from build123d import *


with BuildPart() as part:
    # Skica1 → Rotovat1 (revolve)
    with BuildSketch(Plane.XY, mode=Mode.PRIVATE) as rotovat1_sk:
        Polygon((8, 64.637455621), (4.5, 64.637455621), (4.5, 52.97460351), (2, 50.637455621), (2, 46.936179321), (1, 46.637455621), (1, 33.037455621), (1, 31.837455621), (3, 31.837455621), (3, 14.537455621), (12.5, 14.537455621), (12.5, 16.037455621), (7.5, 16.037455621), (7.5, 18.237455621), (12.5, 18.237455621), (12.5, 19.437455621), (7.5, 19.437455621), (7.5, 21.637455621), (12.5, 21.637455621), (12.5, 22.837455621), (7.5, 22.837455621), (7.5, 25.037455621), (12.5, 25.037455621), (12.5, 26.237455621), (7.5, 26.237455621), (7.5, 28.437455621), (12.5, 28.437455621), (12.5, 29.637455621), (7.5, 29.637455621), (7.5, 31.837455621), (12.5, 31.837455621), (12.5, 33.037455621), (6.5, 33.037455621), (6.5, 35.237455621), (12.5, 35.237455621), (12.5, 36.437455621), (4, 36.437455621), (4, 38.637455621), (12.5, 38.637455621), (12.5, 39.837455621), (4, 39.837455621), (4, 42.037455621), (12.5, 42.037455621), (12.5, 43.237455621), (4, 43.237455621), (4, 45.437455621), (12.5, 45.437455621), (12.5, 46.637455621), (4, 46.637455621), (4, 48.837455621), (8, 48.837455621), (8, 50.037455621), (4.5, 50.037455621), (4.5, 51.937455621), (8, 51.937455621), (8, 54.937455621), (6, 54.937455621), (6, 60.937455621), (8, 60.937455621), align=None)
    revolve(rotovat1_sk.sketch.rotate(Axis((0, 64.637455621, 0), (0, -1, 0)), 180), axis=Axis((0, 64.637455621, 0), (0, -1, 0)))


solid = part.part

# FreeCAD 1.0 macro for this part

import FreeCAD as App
import Part
import Sketcher
from FreeCAD import Vector
Q = App.Units.Quantity


def add_polygon(sketch, points):
    """Adds a closed chain of lines whose ends are joined by coincident constraints."""
    first, n = sketch.GeometryCount, len(points)
    for a, b in zip(points, points[1:] + points[:1]):
        sketch.addGeometry(Part.LineSegment(App.Vector(*a, 0), App.Vector(*b, 0)), False)
    for i in range(n):
        sketch.addConstraint(Sketcher.Constraint("Coincident", first + i, 2, first + (i + 1) % n, 1))

doc = App.newDocument("Part")
body = doc.addObject("PartDesign::Body", "Body")

# Sketch on XY plane
sketch1 = body.newObject("Sketcher::SketchObject", "Sketch")
sketch1.AttachmentSupport = (doc.getObject("XY_Plane"), [""])
sketch1.MapMode = "FlatFace"
add_polygon(sketch1, [(8, 64.6), (4.5, 64.6), (4.5, 53), (2, 50.6), (2, 46.9), (1, 46.6), (1, 31.8), (3, 31.8), (3, 14.5), (12.5, 14.5), (12.5, 16), (7.5, 16), (7.5, 18.2), (12.5, 18.2), (12.5, 19.4), (7.5, 19.4), (7.5, 21.6), (12.5, 21.6), (12.5, 22.8), (7.5, 22.8), (7.5, 25), (12.5, 25), (12.5, 26.2), (7.5, 26.2), (7.5, 28.4), (12.5, 28.4), (12.5, 29.6), (7.5, 29.6), (7.5, 31.8), (12.5, 31.8), (12.5, 33), (6.5, 33), (6.5, 35.2), (12.5, 35.2), (12.5, 36.4), (4, 36.4), (4, 38.6), (12.5, 38.6), (12.5, 39.8), (4, 39.8), (4, 42), (12.5, 42), (12.5, 43.2), (4, 43.2), (4, 45.4), (12.5, 45.4), (12.5, 46.6), (4, 46.6), (4, 48.8), (8, 48.8), (8, 50), (4.5, 50), (4.5, 51.9), (8, 51.9), (8, 54.9), (6, 54.9), (6, 60.9), (8, 60.9)])  # lines 0-57
sketch1.addConstraint([
    Sketcher.Constraint("Horizontal", 0),
    Sketcher.Constraint("Vertical", 1),
    Sketcher.Constraint("Vertical", 3),
    Sketcher.Constraint("Vertical", 5),
    Sketcher.Constraint("Horizontal", 6),
    Sketcher.Constraint("Vertical", 7),
    Sketcher.Constraint("Horizontal", 8),
    Sketcher.Constraint("Vertical", 9),
    Sketcher.Constraint("Horizontal", 10),
    Sketcher.Constraint("Vertical", 11),
    Sketcher.Constraint("Horizontal", 12),
    Sketcher.Constraint("Vertical", 13),
    Sketcher.Constraint("Horizontal", 14),
    Sketcher.Constraint("Vertical", 15),
    Sketcher.Constraint("Horizontal", 16),
    Sketcher.Constraint("Vertical", 17),
    Sketcher.Constraint("Horizontal", 18),
    Sketcher.Constraint("Vertical", 19),
    Sketcher.Constraint("Horizontal", 20),
    Sketcher.Constraint("Vertical", 21),
    Sketcher.Constraint("Horizontal", 22),
    Sketcher.Constraint("Vertical", 23),
    Sketcher.Constraint("Horizontal", 24),
    Sketcher.Constraint("Vertical", 25),
    Sketcher.Constraint("Horizontal", 26),
    Sketcher.Constraint("Vertical", 27),
    Sketcher.Constraint("Horizontal", 28),
    Sketcher.Constraint("Vertical", 29),
    Sketcher.Constraint("Horizontal", 30),
    Sketcher.Constraint("Vertical", 31),
    Sketcher.Constraint("Horizontal", 32),
    Sketcher.Constraint("Vertical", 33),
    Sketcher.Constraint("Horizontal", 34),
    Sketcher.Constraint("Vertical", 35),
    Sketcher.Constraint("Horizontal", 36),
    Sketcher.Constraint("Vertical", 37),
    Sketcher.Constraint("Horizontal", 38),
    Sketcher.Constraint("Vertical", 39),
    Sketcher.Constraint("Horizontal", 40),
    Sketcher.Constraint("Vertical", 41),
    Sketcher.Constraint("Horizontal", 42),
    Sketcher.Constraint("Vertical", 43),
    Sketcher.Constraint("Horizontal", 44),
    Sketcher.Constraint("Vertical", 45),
    Sketcher.Constraint("Horizontal", 46),
    Sketcher.Constraint("Vertical", 47),
    Sketcher.Constraint("Horizontal", 48),
    Sketcher.Constraint("Vertical", 49),
    Sketcher.Constraint("Horizontal", 50),
    Sketcher.Constraint("Vertical", 51),
    Sketcher.Constraint("Horizontal", 52),
    Sketcher.Constraint("Vertical", 53),
    Sketcher.Constraint("Horizontal", 54),
    Sketcher.Constraint("Vertical", 55),
    Sketcher.Constraint("Horizontal", 56),
    Sketcher.Constraint("Vertical", 57),
    Sketcher.Constraint("Horizontal", 6, 2, 27, 2),
    Sketcher.Constraint("Horizontal", 4, 2, 45, 2),
    Sketcher.Constraint("Vertical", 9, 2, 12, 2),
    Sketcher.Constraint("Vertical", 11, 2, 14, 2),
    Sketcher.Constraint("Vertical", 13, 2, 16, 2),
    Sketcher.Constraint("Vertical", 15, 2, 18, 2),
    Sketcher.Constraint("Vertical", 17, 2, 20, 2),
    Sketcher.Constraint("Vertical", 19, 2, 22, 2),
    Sketcher.Constraint("Vertical", 21, 2, 24, 2),
    Sketcher.Constraint("Vertical", 23, 2, 26, 2),
    Sketcher.Constraint("Vertical", 25, 2, 28, 2),
    Sketcher.Constraint("Vertical", 29, 2, 32, 2),
    Sketcher.Constraint("Vertical", 33, 2, 36, 2),
    Sketcher.Constraint("Vertical", 35, 2, 38, 2),
    Sketcher.Constraint("Vertical", 37, 2, 40, 2),
    Sketcher.Constraint("Vertical", 39, 2, 42, 2),
    Sketcher.Constraint("Vertical", 41, 2, 44, 2),
    Sketcher.Constraint("Vertical", 43, 2, 46, 2),
    Sketcher.Constraint("Vertical", 1, 2, 50, 2),
    Sketcher.Constraint("Vertical", 49, 2, 52, 2),
    Sketcher.Constraint("Vertical", 53, 2, 56, 2),
    Sketcher.Constraint("Equal", 6, 54),
    Sketcher.Constraint("Equal", 11, 15),
    Sketcher.Constraint("Equal", 13, 17),
    Sketcher.Constraint("Equal", 15, 19),
    Sketcher.Constraint("Equal", 17, 21),
    Sketcher.Constraint("Equal", 19, 23),
    Sketcher.Constraint("Equal", 21, 25),
    Sketcher.Constraint("Equal", 23, 27),
    Sketcher.Constraint("Equal", 25, 29),
    Sketcher.Constraint("Equal", 27, 31),
    Sketcher.Constraint("Equal", 29, 33),
    Sketcher.Constraint("Equal", 31, 35),
    Sketcher.Constraint("Equal", 33, 37),
    Sketcher.Constraint("Equal", 35, 39),
    Sketcher.Constraint("Equal", 37, 41),
    Sketcher.Constraint("Equal", 39, 43),
    Sketcher.Constraint("Equal", 41, 45),
    Sketcher.Constraint("Equal", 43, 47),
    Sketcher.Constraint("Equal", 45, 49),
    Sketcher.Constraint("Equal", 32, 55),
    Sketcher.Constraint("DistanceX", 6, 1, 6, 2, Q("2 mm")),
    Sketcher.Constraint("DistanceX", 10, 2, 10, 1, Q("5 mm")),
    Sketcher.Constraint("DistanceX", 30, 2, 30, 1, Q("6 mm")),
    Sketcher.Constraint("DistanceX", 48, 1, 48, 2, Q("4 mm")),
    Sketcher.Constraint("DistanceY", 53, 1, 53, 2, Q("3 mm")),
    Sketcher.Constraint("DistanceX", 0, 2, 0, 1, Q("3.5 mm")),
    Sketcher.Constraint("DistanceX", 8, 1, 8, 2, Q("9.5 mm")),
    Sketcher.Constraint("DistanceX", 34, 2, 34, 1, Q("8.5 mm")),
    Sketcher.Constraint("DistanceY", 5, 2, 5, 1, Q("14.8 mm")),
    Sketcher.Constraint("DistanceY", 7, 2, 7, 1, Q("17.3 mm")),
    Sketcher.Constraint("DistanceY", 9, 1, 9, 2, Q("1.5 mm")),
    Sketcher.Constraint("DistanceY", 51, 1, 51, 2, Q("1.9 mm")),
    Sketcher.Constraint("DistanceY", 57, 1, 57, 2, Q("3.7 mm")),
    Sketcher.Constraint("DistanceX", -1, 1, 2, 2, Q("2 mm")),
    Sketcher.Constraint("DistanceX", -1, 1, 4, 2, Q("1 mm")),
    Sketcher.Constraint("DistanceY", 2, 2, 0, 2, Q("14 mm")),
    Sketcher.Constraint("DistanceY", 1, 2, 1, 1, Q("11.662852 mm")),
    Sketcher.Constraint("DistanceY", 3, 2, 3, 1, Q("3.701276 mm")),
    Sketcher.Constraint("DistanceY", -1, 1, 3, 2, Q("46.936179 mm")),
])
revolution = body.newObject("PartDesign::Revolution", "Revolution")
revolution.Profile = sketch1
revolution.ReferenceAxis = (sketch1, ["V_Axis"])
revolution.Angle = 360

doc.recompute()
